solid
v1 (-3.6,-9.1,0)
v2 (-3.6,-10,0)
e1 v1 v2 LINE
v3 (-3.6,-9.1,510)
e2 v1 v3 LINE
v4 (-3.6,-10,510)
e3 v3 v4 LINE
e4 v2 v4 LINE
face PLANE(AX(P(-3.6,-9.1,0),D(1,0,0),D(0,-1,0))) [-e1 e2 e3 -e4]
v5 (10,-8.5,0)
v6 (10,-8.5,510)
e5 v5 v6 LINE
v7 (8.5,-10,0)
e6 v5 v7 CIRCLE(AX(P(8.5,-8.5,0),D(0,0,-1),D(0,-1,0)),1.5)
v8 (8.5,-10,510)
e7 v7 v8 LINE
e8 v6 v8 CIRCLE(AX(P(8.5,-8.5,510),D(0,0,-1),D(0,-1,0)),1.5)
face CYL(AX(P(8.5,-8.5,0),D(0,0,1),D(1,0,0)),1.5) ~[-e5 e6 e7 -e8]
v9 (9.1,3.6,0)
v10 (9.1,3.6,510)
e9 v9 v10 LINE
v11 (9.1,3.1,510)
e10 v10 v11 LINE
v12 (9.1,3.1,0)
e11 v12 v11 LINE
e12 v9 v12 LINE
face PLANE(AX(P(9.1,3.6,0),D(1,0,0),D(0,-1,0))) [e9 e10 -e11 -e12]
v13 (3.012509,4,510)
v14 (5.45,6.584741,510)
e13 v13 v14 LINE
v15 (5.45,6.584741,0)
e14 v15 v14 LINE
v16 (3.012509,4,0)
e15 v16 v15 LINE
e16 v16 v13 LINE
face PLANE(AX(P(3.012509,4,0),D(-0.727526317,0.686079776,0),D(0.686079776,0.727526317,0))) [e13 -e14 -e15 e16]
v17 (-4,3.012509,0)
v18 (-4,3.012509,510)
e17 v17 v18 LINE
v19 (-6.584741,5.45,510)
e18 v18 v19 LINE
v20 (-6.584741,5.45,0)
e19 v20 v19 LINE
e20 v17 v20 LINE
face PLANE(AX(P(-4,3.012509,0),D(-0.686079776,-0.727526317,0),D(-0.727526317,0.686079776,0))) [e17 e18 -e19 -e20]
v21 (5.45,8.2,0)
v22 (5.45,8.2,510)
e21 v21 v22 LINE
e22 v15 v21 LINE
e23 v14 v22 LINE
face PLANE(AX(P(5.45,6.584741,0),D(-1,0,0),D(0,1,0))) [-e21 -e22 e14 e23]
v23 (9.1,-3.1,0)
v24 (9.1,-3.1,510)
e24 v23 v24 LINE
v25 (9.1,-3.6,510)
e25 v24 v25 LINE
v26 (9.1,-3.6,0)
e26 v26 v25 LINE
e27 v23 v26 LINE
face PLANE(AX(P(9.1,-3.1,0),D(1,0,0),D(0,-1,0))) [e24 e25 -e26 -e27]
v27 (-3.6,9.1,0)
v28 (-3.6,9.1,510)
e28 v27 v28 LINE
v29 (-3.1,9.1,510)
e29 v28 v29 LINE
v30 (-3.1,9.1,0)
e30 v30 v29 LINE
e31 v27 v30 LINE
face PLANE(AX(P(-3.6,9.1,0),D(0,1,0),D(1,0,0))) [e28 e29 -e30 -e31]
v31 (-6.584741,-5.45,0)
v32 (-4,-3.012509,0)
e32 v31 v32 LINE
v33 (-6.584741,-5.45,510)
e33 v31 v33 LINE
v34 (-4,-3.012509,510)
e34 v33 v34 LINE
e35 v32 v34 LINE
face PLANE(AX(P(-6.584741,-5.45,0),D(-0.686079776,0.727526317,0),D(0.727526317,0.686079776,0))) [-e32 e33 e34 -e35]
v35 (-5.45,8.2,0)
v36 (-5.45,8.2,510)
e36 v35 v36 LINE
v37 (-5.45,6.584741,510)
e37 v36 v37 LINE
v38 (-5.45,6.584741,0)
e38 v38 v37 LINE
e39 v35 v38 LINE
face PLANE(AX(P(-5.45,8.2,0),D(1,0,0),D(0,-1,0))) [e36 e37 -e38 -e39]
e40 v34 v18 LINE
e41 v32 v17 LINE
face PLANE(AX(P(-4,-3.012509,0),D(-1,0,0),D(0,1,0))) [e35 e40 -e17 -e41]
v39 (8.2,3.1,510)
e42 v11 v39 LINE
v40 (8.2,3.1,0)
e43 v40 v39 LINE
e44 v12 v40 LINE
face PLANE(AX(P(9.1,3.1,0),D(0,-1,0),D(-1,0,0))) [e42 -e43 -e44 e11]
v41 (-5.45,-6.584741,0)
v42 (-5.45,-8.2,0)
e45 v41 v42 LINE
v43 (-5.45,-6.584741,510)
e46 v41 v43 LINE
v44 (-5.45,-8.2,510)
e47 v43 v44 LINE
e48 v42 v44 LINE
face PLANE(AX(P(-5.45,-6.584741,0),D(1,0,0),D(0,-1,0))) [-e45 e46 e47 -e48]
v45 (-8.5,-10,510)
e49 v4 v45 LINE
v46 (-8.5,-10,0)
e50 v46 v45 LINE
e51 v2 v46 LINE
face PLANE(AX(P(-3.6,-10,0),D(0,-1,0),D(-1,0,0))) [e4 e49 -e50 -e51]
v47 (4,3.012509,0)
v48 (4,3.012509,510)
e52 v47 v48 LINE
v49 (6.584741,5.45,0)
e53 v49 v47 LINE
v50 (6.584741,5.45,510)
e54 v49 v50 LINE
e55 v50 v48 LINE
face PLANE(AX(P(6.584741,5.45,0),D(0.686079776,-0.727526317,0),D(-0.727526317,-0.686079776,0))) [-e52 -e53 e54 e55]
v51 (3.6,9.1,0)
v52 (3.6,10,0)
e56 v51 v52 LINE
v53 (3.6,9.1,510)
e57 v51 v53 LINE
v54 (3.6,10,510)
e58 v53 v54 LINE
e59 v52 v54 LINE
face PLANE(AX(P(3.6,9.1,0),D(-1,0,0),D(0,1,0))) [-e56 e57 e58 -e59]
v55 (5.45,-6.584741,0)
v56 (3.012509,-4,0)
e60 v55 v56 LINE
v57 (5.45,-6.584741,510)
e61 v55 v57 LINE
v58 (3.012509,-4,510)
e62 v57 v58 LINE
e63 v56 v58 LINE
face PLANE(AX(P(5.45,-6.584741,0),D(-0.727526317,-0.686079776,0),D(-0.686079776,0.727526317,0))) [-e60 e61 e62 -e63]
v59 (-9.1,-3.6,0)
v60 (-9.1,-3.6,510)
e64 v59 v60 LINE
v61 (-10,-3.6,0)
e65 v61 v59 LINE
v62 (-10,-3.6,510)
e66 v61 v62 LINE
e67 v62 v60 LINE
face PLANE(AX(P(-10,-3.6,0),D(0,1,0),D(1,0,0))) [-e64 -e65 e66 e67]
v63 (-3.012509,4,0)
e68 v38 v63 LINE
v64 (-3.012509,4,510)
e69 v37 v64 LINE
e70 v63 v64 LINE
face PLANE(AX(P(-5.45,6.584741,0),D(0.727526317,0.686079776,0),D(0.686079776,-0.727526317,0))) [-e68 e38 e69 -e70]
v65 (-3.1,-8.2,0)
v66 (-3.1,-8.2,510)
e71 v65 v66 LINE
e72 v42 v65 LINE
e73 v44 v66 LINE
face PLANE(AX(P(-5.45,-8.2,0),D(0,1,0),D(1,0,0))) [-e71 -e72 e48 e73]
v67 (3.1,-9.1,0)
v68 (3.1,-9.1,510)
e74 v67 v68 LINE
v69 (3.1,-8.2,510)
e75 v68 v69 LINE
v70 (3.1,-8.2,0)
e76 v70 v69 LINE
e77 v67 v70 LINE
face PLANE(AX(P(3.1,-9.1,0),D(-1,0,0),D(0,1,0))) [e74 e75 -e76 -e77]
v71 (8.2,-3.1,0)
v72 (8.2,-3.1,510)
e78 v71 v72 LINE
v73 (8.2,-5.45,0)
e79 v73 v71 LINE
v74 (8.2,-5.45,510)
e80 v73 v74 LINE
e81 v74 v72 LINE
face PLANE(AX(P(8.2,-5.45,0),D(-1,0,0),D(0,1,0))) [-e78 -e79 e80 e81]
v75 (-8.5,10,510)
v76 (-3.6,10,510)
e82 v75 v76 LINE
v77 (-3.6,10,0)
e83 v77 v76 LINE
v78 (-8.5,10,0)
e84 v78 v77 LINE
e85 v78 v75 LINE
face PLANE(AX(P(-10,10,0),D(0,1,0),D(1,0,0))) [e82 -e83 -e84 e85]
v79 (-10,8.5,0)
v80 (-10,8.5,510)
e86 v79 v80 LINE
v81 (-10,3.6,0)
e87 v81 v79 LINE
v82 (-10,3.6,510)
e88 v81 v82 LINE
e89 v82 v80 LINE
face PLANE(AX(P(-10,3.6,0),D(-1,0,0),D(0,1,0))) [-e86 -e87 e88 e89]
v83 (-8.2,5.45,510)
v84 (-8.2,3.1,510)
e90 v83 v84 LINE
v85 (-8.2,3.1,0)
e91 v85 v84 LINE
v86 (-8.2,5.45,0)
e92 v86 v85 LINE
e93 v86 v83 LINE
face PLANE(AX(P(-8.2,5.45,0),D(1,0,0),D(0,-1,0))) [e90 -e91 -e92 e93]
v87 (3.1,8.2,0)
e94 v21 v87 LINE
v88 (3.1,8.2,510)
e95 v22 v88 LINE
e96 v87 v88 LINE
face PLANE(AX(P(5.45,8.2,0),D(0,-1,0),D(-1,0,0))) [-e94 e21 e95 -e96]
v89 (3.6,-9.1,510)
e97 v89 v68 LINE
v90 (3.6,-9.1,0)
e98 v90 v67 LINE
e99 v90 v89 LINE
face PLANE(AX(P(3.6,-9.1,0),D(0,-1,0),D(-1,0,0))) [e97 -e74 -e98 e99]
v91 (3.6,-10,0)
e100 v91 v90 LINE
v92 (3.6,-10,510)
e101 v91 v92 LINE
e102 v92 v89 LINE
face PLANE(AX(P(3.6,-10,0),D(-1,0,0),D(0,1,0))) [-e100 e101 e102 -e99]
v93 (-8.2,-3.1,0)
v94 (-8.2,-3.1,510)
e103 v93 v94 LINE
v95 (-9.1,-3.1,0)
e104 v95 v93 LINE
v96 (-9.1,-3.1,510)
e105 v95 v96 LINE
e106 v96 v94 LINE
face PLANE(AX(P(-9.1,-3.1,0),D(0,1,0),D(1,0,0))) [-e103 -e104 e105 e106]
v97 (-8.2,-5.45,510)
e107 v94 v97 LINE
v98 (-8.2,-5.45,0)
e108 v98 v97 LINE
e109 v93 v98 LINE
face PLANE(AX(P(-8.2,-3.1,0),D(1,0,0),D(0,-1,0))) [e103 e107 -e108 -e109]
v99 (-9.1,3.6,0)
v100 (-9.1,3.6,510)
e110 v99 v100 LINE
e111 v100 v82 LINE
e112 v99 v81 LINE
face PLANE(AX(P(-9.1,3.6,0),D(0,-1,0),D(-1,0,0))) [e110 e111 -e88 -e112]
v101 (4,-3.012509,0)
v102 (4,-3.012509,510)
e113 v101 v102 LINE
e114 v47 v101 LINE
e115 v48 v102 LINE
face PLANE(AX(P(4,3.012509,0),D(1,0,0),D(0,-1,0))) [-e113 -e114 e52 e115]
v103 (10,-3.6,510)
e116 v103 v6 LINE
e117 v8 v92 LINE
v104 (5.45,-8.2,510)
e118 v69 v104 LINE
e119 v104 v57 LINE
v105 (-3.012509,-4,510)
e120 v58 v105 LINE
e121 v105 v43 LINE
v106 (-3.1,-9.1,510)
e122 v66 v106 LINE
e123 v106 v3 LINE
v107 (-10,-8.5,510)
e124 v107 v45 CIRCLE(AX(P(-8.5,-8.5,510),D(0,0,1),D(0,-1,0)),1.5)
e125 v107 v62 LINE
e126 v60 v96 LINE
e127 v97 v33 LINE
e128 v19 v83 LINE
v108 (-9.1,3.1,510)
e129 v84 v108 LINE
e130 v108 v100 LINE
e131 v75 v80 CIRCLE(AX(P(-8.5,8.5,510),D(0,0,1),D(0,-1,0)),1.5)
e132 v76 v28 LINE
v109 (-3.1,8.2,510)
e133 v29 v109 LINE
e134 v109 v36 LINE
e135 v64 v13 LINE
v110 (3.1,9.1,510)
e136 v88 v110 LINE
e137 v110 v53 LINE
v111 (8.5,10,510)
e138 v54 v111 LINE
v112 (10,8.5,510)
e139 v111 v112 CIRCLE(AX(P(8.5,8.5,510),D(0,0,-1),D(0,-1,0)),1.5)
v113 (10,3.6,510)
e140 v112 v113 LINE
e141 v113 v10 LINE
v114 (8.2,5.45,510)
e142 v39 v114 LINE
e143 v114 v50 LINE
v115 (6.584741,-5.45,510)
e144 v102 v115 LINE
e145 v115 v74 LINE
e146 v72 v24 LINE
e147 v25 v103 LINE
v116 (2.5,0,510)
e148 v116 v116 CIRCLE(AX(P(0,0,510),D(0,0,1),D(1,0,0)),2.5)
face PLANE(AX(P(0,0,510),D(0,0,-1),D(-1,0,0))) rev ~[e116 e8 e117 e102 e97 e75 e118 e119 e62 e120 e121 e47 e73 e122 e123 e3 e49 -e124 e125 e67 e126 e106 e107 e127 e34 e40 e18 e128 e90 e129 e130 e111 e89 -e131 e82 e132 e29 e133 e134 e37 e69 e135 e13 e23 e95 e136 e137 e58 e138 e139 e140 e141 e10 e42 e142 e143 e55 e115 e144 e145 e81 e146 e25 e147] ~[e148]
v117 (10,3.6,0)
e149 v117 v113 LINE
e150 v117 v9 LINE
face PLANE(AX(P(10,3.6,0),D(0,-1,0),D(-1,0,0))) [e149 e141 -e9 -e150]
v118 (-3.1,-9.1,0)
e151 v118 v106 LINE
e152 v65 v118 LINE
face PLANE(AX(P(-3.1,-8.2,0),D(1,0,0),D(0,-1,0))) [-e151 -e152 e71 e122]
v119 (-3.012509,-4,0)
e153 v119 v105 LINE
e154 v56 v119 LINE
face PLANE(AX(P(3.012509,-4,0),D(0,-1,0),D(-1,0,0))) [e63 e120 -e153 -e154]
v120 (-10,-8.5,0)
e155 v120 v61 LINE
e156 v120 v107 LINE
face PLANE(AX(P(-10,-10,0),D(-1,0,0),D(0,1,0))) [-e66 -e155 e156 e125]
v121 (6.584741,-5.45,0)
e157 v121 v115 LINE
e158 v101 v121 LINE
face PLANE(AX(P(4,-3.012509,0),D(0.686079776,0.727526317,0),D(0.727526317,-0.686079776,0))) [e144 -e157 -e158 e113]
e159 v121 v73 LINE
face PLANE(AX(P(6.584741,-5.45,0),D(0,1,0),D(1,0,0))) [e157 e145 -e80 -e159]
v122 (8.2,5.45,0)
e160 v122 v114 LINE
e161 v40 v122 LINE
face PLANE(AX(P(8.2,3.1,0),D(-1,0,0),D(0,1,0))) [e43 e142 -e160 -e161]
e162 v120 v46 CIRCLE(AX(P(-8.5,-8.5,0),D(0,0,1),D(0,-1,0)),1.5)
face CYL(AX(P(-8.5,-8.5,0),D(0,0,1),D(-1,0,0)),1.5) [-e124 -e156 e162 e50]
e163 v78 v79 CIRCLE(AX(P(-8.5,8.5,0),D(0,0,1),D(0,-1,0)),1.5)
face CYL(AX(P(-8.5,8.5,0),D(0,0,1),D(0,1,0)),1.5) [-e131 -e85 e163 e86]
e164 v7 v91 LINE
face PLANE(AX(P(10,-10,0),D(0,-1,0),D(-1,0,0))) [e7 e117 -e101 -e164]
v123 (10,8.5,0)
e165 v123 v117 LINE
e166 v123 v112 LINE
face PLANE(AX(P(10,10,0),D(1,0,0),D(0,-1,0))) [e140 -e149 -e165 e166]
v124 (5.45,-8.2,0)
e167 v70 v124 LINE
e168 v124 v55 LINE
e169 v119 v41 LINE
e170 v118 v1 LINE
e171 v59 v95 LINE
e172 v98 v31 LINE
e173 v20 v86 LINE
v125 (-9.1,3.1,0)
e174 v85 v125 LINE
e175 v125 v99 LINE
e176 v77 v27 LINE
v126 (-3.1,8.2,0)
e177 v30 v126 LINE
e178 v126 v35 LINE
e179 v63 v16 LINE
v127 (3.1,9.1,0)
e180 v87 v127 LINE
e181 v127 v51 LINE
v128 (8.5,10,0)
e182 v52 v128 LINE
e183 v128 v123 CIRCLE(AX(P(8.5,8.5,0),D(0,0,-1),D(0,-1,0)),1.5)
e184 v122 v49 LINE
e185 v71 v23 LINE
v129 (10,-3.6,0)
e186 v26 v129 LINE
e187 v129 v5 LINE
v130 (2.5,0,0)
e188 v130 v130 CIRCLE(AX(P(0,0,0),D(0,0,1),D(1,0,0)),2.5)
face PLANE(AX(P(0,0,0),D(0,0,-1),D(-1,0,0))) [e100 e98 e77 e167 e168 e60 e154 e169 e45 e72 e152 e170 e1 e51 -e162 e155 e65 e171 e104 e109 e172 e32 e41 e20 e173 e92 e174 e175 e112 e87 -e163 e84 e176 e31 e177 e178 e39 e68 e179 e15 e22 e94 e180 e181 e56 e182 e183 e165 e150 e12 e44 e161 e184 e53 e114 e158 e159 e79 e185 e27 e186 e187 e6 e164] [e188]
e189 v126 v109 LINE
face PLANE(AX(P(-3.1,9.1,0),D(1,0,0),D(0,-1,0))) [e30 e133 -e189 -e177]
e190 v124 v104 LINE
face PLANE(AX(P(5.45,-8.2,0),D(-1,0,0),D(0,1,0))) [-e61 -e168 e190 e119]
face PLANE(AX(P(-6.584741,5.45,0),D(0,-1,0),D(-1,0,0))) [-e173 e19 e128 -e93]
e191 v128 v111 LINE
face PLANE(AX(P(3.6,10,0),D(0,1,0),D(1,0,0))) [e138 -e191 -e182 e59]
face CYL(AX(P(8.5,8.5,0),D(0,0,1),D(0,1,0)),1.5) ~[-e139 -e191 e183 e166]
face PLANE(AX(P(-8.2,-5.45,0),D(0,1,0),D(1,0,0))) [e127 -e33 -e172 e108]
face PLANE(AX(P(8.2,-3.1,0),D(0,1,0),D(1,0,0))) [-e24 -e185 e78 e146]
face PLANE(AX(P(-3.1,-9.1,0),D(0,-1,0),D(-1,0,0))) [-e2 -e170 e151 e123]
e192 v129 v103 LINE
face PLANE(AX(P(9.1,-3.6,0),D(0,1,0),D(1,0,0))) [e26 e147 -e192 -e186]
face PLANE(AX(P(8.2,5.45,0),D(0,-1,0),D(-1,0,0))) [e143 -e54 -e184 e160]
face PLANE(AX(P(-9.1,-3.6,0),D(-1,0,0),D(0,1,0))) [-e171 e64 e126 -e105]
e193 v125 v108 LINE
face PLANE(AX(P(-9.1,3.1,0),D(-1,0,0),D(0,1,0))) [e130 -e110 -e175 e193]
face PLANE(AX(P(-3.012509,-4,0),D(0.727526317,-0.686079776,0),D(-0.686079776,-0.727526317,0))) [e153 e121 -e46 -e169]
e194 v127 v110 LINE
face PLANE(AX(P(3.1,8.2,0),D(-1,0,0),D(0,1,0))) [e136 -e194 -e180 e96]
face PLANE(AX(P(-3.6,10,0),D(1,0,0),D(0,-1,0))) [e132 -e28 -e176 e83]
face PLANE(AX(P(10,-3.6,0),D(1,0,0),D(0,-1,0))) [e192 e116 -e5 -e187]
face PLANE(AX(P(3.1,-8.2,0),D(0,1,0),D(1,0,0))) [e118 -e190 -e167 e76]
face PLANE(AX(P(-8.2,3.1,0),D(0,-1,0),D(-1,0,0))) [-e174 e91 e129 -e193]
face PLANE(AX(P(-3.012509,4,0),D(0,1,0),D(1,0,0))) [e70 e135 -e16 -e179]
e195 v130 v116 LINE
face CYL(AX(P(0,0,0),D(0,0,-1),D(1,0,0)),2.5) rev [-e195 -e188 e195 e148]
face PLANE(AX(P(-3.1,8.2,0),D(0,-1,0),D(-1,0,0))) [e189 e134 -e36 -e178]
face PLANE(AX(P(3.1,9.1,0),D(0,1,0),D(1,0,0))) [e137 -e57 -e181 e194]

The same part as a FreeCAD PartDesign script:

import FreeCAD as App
import Part
import Sketcher


def edges_at(feature, points):
    """Names of the edges that pass closest to the given points."""
    edges = feature.Shape.Edges
    near = lambda p: min(range(len(edges)), key=lambda i: edges[i].distToShape(Part.Vertex(*p))[0])
    return sorted({f"Edge{near(p) + 1}" for p in points})


def add_polygon(sketch, points):
    """Adds a closed chain of lines whose ends are joined by coincident constraints."""
    first, n = sketch.GeometryCount, len(points)
    for a, b in zip(points, points[1:] + points[:1]):
        sketch.addGeometry(Part.LineSegment(App.Vector(*a, 0), App.Vector(*b, 0)), False)
    for i in range(n):
        sketch.addConstraint(Sketcher.Constraint("Coincident", first + i, 2, first + (i + 1) % n, 1))

doc = App.newDocument("Part")
body = doc.addObject("PartDesign::Body", "Body")

# Sketch on XY plane
sketch1 = body.newObject("Sketcher::SketchObject", "Sketch")
sketch1.AttachmentSupport = (doc.getObject("XY_Plane"), [""])
sketch1.MapMode = "FlatFace"
add_polygon(sketch1, [(3, 4), (-3, 4), (-5.5, 6.6), (-5.5, 8.2), (-3.1, 8.2), (-3.1, 9.1), (-3.6, 9.1), (-3.6, 10), (-10, 10), (-10, 3.6), (-9.1, 3.6), (-9.1, 3.1), (-8.2, 3.1), (-8.2, 5.5), (-6.6, 5.5), (-4, 3), (-4, -3), (-6.6, -5.5), (-8.2, -5.5), (-8.2, -3.1), (-9.1, -3.1), (-9.1, -3.6), (-10, -3.6), (-10, -10), (-3.6, -10), (-3.6, -9.1), (-3.1, -9.1), (-3.1, -8.2), (-5.5, -8.2), (-5.5, -6.6), (-3, -4), (3, -4), (5.5, -6.6), (5.5, -8.2), (3.1, -8.2), (3.1, -9.1), (3.6, -9.1), (3.6, -10), (10, -10), (10, -3.6), (9.1, -3.6), (9.1, -3.1), (8.2, -3.1), (8.2, -5.5), (6.6, -5.5), (4, -3), (4, 3), (6.6, 5.5), (8.2, 5.5), (8.2, 3.1), (9.1, 3.1), (9.1, 3.6), (10, 3.6), (10, 10), (3.6, 10), (3.6, 9.1), (3.1, 9.1), (3.1, 8.2), (5.5, 8.2), (5.5, 6.6)])  # lines 0-59
sketch1.addGeometry(Part.Circle(App.Vector(0, 0, 0), App.Vector(0, 0, 1), 2.5), False)  # 60
sketch1.addConstraint([
    Sketcher.Constraint("Horizontal", 0),
    Sketcher.Constraint("Vertical", 2),
    Sketcher.Constraint("Horizontal", 3),
    Sketcher.Constraint("Vertical", 4),
    Sketcher.Constraint("Horizontal", 5),
    Sketcher.Constraint("Vertical", 6),
    Sketcher.Constraint("Horizontal", 7),
    Sketcher.Constraint("Vertical", 8),
    Sketcher.Constraint("Horizontal", 9),
    Sketcher.Constraint("Vertical", 10),
    Sketcher.Constraint("Horizontal", 11),
    Sketcher.Constraint("Vertical", 12),
    Sketcher.Constraint("Horizontal", 13),
    Sketcher.Constraint("Vertical", 15),
    Sketcher.Constraint("Horizontal", 17),
    Sketcher.Constraint("Vertical", 18),
    Sketcher.Constraint("Horizontal", 19),
    Sketcher.Constraint("Vertical", 20),
    Sketcher.Constraint("Horizontal", 21),
    Sketcher.Constraint("Vertical", 22),
    Sketcher.Constraint("Horizontal", 23),
    Sketcher.Constraint("Vertical", 24),
    Sketcher.Constraint("Horizontal", 25),
    Sketcher.Constraint("Vertical", 26),
    Sketcher.Constraint("Horizontal", 27),
    Sketcher.Constraint("Vertical", 28),
    Sketcher.Constraint("Horizontal", 30),
    Sketcher.Constraint("Vertical", 32),
    Sketcher.Constraint("Horizontal", 33),
    Sketcher.Constraint("Vertical", 34),
    Sketcher.Constraint("Horizontal", 35),
    Sketcher.Constraint("Vertical", 36),
    Sketcher.Constraint("Horizontal", 37),
    Sketcher.Constraint("Vertical", 38),
    Sketcher.Constraint("Horizontal", 39),
    Sketcher.Constraint("Vertical", 40),
    Sketcher.Constraint("Horizontal", 41),
    Sketcher.Constraint("Vertical", 42),
    Sketcher.Constraint("Horizontal", 43),
    Sketcher.Constraint("Vertical", 45),
    Sketcher.Constraint("Horizontal", 47),
    Sketcher.Constraint("Vertical", 48),
    Sketcher.Constraint("Horizontal", 49),
    Sketcher.Constraint("Vertical", 50),
    Sketcher.Constraint("Horizontal", 51),
    Sketcher.Constraint("Vertical", 52),
    Sketcher.Constraint("Horizontal", 53),
    Sketcher.Constraint("Vertical", 54),
    Sketcher.Constraint("Horizontal", 55),
    Sketcher.Constraint("Vertical", 56),
    Sketcher.Constraint("Horizontal", 57),
    Sketcher.Constraint("Vertical", 58),
    Sketcher.Constraint("Coincident", 60, 3, -1, 1),
    Sketcher.Constraint("Symmetric", 0, 2, 30, 2, -1, 1),
    Sketcher.Constraint("Symmetric", 1, 2, 31, 2, -1, 1),
    Sketcher.Constraint("Symmetric", 3, 2, 33, 2, -1, 1),
    Sketcher.Constraint("Symmetric", 5, 2, 35, 2, -1, 1),
    Sketcher.Constraint("Symmetric", 7, 2, 37, 2, -1, 1),
    Sketcher.Constraint("Symmetric", 9, 2, 39, 2, -1, 1),
    Sketcher.Constraint("Symmetric", 11, 2, 41, 2, -1, 1),
    Sketcher.Constraint("Symmetric", 13, 2, 43, 2, -1, 1),
    Sketcher.Constraint("Symmetric", 14, 2, 44, 2, -1, 1),
    Sketcher.Constraint("Symmetric", 16, 2, 46, 2, -1, 1),
    Sketcher.Constraint("Symmetric", 18, 2, 48, 2, -1, 1),
    Sketcher.Constraint("Symmetric", 20, 2, 50, 2, -1, 1),
    Sketcher.Constraint("Symmetric", 22, 2, 52, 2, -1, 1),
    Sketcher.Constraint("Symmetric", 24, 2, 54, 2, -1, 1),
    Sketcher.Constraint("Symmetric", 26, 2, 56, 2, -1, 1),
    Sketcher.Constraint("Symmetric", 28, 2, 58, 2, -1, 1),
    Sketcher.Constraint("Symmetric", 28, 2, 31, 2, -2),
    Sketcher.Constraint("Symmetric", 26, 2, 33, 2, -2),
    Sketcher.Constraint("Symmetric", 24, 2, 35, 2, -2),
    Sketcher.Constraint("Symmetric", 22, 2, 37, 2, -2),
    Sketcher.Constraint("Symmetric", 20, 2, 39, 2, -2),
    Sketcher.Constraint("Symmetric", 18, 2, 41, 2, -2),
    Sketcher.Constraint("Symmetric", 16, 2, 43, 2, -2),
    Sketcher.Constraint("Perpendicular", 1, 16),
    Sketcher.Constraint("Perpendicular", 14, 29),
    Sketcher.Constraint("Perpendicular", 31, 46),
    Sketcher.Constraint("Perpendicular", 44, 59),
    Sketcher.Constraint("Horizontal", 15, 2, 44, 2),
    Sketcher.Constraint("Equal", 9, 11),
    Sketcher.Constraint("Equal", 47, 2),
    Sketcher.Constraint("Equal", 51, 4),
    Sketcher.Constraint("Equal", 4, 6),
    Sketcher.Constraint("Equal", 53, 8),
    Sketcher.Constraint("Equal", 55, 10),
    Sketcher.Constraint("Equal", 57, 12),
    Sketcher.Constraint("Equal", 30, 15),
    Sketcher.Constraint("Equal", 1, 14),
    Sketcher.Constraint("Diameter", 60, 5.0),
    Sketcher.Constraint("DistanceX", 5, 2, 5, 1, 0.5),
    Sketcher.Constraint("DistanceX", 7, 2, 7, 1, 6.4),
    Sketcher.Constraint("DistanceX", 9, 1, 9, 2, 0.9),
    Sketcher.Constraint("DistanceY", -1, 1, 0, 2, 4.0),
    Sketcher.Constraint("DistanceY", -1, 1, 6, 2, 10.0),
    Sketcher.Constraint("DistanceX", 3, 1, 3, 2, 2.35),
    Sketcher.Constraint("DistanceX", 0, 2, 0, 1, 6.025019),
    Sketcher.Constraint("DistanceX", 13, 1, 13, 2, 1.615259),
])
pad1 = body.newObject("PartDesign::Pad", "Pad")
pad1.Profile = sketch1
pad1.Length = 510
doc.recompute()

fillet = body.newObject("PartDesign::Fillet", "Fillet")
fillet.Base = (pad1, edges_at(pad1, [
    (10, -10, 255),
    (-10, -10, 255),
    (-10, 10, 255),
    (10, 10, 255),
]))
fillet.Radius = 1.5

doc.recompute()
